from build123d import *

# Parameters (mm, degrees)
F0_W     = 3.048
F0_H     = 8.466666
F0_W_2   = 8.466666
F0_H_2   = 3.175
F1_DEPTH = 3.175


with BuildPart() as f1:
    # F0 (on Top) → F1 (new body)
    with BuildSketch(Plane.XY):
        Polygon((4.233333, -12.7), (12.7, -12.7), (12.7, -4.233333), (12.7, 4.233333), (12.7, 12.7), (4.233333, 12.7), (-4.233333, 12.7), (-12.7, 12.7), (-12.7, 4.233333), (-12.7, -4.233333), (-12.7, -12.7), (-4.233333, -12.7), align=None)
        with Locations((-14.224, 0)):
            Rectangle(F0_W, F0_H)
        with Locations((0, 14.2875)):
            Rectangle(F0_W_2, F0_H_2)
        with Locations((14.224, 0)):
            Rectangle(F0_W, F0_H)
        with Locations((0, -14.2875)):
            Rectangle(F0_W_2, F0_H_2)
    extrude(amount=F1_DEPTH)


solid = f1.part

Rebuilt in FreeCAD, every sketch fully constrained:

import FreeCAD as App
import Part
import Sketcher
from FreeCAD import Vector
Q = App.Units.Quantity


def add_polygon(sketch, points):
    """Adds a closed chain of lines whose ends are joined by coincident constraints."""
    first, n = sketch.GeometryCount, len(points)
    for a, b in zip(points, points[1:] + points[:1]):
        sketch.addGeometry(Part.LineSegment(App.Vector(*a, 0), App.Vector(*b, 0)), False)
    for i in range(n):
        sketch.addConstraint(Sketcher.Constraint("Coincident", first + i, 2, first + (i + 1) % n, 1))

doc = App.newDocument("Part")
body = doc.addObject("PartDesign::Body", "Body")

# Sketch on XY plane
sketch1 = body.newObject("Sketcher::SketchObject", "Sketch")
sketch1.AttachmentSupport = (doc.getObject("XY_Plane"), [""])
sketch1.MapMode = "FlatFace"
add_polygon(sketch1, [(12.7, -12.7), (12.7, -4.2), (15.7, -4.2), (15.7, 4.2), (12.7, 4.2), (12.7, 12.7), (4.2, 12.7), (4.2, 15.9), (-4.2, 15.9), (-4.2, 12.7), (-12.7, 12.7), (-12.7, 4.2), (-15.7, 4.2), (-15.7, -4.2), (-12.7, -4.2), (-12.7, -12.7), (-4.2, -12.7), (-4.2, -15.9), (4.2, -15.9), (4.2, -12.7)])  # lines 0-19
sketch1.addConstraint(Sketcher.Constraint("Vertical", 0))
sketch1.addConstraint(Sketcher.Constraint("Horizontal", 1))
sketch1.addConstraint(Sketcher.Constraint("Vertical", 2))
sketch1.addConstraint(Sketcher.Constraint("Horizontal", 3))
sketch1.addConstraint(Sketcher.Constraint("Vertical", 4))
sketch1.addConstraint(Sketcher.Constraint("Horizontal", 5))
sketch1.addConstraint(Sketcher.Constraint("Vertical", 6))
sketch1.addConstraint(Sketcher.Constraint("Horizontal", 7))
sketch1.addConstraint(Sketcher.Constraint("Vertical", 8))
sketch1.addConstraint(Sketcher.Constraint("Horizontal", 9))
sketch1.addConstraint(Sketcher.Constraint("Vertical", 10))
sketch1.addConstraint(Sketcher.Constraint("Horizontal", 11))
sketch1.addConstraint(Sketcher.Constraint("Vertical", 12))
sketch1.addConstraint(Sketcher.Constraint("Horizontal", 13))
sketch1.addConstraint(Sketcher.Constraint("Vertical", 14))
sketch1.addConstraint(Sketcher.Constraint("Horizontal", 15))
sketch1.addConstraint(Sketcher.Constraint("Vertical", 16))
sketch1.addConstraint(Sketcher.Constraint("Horizontal", 17))
sketch1.addConstraint(Sketcher.Constraint("Vertical", 18))
sketch1.addConstraint(Sketcher.Constraint("Horizontal", 19))
sketch1.addConstraint(Sketcher.Constraint("Symmetric", 0, 2, 10, 2, -1, 1))
sketch1.addConstraint(Sketcher.Constraint("Symmetric", 2, 2, 12, 2, -1, 1))
sketch1.addConstraint(Sketcher.Constraint("Symmetric", 4, 2, 14, 2, -1, 1))
sketch1.addConstraint(Sketcher.Constraint("Symmetric", 6, 2, 16, 2, -1, 1))
sketch1.addConstraint(Sketcher.Constraint("Symmetric", 8, 2, 18, 2, -1, 1))
sketch1.addConstraint(Sketcher.Constraint("Symmetric", 5, 2, 8, 2, -2))
sketch1.addConstraint(Sketcher.Constraint("Symmetric", 3, 2, 10, 2, -2))
sketch1.addConstraint(Sketcher.Constraint("Equal", 5, 7))
sketch1.addConstraint(Sketcher.Constraint("Equal", 19, 0))
sketch1.addConstraint(Sketcher.Constraint("Equal", 0, 2))
sketch1.addConstraint(Sketcher.Constraint("DistanceX", 9, 2, 4, 2, Q("1 in")))
sketch1.addConstraint(Sketcher.Constraint("DistanceX", 1, 1, 1, 2, Q("0.12 in")))
sketch1.addConstraint(Sketcher.Constraint("DistanceY", 6, 1, 6, 2, Q("0.125 in")))
pad1 = body.newObject("PartDesign::Pad", "Pad")
pad1.Profile = sketch1
pad1.Length = Q("0.125 in")

doc.recompute()
